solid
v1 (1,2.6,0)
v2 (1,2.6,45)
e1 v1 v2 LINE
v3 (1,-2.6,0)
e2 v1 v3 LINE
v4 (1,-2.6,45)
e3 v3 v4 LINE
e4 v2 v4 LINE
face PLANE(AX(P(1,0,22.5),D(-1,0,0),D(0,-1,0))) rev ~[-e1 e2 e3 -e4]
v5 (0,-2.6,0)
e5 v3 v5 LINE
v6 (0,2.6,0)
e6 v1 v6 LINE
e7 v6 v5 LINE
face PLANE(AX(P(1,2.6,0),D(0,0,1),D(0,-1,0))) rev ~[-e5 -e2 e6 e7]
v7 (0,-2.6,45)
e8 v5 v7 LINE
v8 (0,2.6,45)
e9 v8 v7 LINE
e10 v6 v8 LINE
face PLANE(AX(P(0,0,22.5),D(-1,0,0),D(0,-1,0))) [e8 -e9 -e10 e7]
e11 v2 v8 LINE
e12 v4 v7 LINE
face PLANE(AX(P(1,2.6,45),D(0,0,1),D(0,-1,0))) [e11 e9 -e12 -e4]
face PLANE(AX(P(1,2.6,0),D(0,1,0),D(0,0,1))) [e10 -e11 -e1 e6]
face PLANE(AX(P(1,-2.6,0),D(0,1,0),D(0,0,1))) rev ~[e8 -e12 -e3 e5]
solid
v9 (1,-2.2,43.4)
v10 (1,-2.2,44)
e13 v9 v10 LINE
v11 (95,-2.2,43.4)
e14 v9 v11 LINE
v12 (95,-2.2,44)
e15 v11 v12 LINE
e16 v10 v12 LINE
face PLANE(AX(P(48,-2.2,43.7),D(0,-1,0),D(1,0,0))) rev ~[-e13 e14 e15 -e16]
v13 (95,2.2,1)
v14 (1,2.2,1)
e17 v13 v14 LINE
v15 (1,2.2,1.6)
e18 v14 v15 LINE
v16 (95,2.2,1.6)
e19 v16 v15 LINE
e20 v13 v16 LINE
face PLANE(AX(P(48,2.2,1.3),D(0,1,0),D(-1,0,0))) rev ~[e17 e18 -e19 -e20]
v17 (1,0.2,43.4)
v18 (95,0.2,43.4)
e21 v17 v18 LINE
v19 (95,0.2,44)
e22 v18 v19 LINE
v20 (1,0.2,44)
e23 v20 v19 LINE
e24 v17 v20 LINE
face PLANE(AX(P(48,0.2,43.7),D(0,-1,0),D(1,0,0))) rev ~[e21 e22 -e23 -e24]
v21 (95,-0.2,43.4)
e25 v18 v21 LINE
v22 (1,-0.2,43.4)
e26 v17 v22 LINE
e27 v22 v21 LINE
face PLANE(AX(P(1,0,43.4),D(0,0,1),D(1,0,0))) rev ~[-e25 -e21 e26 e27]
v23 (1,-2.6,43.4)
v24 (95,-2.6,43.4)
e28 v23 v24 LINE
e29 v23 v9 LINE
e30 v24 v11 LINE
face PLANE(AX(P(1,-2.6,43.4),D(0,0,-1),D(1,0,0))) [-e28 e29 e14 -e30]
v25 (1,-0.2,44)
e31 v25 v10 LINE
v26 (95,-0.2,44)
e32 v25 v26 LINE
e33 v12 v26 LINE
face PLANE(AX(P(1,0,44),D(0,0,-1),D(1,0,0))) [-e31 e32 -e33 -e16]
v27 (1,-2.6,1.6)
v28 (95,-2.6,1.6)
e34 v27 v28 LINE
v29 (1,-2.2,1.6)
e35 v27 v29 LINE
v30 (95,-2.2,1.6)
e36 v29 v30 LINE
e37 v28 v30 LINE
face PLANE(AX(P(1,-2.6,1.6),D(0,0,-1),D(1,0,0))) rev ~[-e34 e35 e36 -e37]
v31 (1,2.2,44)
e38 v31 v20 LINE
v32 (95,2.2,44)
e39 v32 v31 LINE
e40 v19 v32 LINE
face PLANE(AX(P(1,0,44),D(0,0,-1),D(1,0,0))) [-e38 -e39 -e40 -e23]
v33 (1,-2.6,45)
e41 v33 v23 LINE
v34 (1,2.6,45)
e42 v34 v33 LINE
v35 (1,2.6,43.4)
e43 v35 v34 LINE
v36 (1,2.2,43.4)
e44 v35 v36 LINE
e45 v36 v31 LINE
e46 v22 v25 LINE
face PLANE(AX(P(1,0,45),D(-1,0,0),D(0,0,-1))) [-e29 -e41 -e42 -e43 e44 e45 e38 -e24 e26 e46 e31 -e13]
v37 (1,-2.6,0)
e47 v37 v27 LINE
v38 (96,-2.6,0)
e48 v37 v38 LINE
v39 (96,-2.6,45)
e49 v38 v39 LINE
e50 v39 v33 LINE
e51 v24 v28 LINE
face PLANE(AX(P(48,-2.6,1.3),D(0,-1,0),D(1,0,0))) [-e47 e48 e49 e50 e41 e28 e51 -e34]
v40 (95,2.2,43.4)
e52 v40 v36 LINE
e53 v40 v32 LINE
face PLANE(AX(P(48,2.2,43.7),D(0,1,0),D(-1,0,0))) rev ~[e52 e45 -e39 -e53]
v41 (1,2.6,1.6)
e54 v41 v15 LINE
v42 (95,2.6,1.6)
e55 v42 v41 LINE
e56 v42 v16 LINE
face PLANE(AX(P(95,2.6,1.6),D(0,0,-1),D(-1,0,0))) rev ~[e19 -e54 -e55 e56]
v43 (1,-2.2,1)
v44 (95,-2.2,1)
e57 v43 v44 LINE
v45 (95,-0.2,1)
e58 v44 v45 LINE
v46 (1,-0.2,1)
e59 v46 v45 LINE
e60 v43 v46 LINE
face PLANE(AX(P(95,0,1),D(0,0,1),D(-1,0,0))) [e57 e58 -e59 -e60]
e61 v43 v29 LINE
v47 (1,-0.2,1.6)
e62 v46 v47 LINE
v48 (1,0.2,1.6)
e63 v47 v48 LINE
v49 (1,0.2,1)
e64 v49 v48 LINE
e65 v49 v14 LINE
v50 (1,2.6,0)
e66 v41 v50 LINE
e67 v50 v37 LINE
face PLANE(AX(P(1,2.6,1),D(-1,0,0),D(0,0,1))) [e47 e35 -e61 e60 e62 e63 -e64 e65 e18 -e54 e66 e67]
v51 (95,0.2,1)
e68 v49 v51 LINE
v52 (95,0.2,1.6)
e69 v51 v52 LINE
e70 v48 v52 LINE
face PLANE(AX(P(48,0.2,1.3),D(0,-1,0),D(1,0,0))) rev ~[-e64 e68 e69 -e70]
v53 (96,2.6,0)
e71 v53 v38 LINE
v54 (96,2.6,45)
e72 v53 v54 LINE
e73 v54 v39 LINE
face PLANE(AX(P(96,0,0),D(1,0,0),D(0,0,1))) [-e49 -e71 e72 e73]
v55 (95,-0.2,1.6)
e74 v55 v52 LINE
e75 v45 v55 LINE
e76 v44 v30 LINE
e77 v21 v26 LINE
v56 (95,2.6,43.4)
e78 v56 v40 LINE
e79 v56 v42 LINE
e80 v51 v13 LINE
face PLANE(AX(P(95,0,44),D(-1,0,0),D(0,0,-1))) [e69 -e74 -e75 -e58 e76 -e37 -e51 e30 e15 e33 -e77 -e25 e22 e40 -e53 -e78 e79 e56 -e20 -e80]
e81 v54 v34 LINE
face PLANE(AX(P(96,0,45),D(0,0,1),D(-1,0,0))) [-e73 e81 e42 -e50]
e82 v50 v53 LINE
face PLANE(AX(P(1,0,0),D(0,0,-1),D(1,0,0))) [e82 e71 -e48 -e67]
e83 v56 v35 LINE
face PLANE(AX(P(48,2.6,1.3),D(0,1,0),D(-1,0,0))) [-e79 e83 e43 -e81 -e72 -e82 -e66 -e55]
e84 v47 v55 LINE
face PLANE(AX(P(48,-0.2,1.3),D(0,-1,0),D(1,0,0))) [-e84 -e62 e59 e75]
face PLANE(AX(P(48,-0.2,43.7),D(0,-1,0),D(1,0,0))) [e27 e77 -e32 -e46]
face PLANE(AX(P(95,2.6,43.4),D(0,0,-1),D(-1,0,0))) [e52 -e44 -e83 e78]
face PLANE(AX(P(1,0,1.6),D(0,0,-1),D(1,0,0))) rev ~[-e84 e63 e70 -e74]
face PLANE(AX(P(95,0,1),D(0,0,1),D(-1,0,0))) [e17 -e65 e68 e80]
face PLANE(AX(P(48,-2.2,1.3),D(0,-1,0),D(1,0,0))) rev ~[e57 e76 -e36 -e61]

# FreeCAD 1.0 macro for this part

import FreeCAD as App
import Part
import Sketcher

V = App.Vector


def add_polygon(sketch, points):
    """Adds a closed chain of lines whose ends are joined by coincident constraints."""
    first, n = sketch.GeometryCount, len(points)
    for a, b in zip(points, points[1:] + points[:1]):
        sketch.addGeometry(Part.LineSegment(App.Vector(*a, 0), App.Vector(*b, 0)), False)
    for i in range(n):
        sketch.addConstraint(Sketcher.Constraint("Coincident", first + i, 2, first + (i + 1) % n, 1))

doc = App.newDocument("Part")
params = doc.addObject("Spreadsheet::Sheet", "Params")
for row, (alias, value) in enumerate([
    ("sketch1_width", "95 mm"),
    ("sketch1_width2", "94 mm"),
    ("sketch1_height", "1 mm"),
    ("sketch1_height2", "45 mm"),
    ("pad1_length", "5.2 mm"),
    ("sketch2_width", "94 mm"),
    ("sketch2_height", "0.6 mm"),
    ("pad2_length", "0.4 mm"),
    ("sketch3_width", "94 mm"),
    ("sketch3_height", "0.6 mm"),
    ("pad3_length", "0.4 mm"),
    ("sketch4_width", "94 mm"),
    ("sketch4_height", "0.6 mm"),
    ("pad4_length", "0.4 mm"),
    ("sketch5_height", "45 mm"),
    ("sketch5_width", "5.2 mm"),
    ("pad5_length", "1 mm"),
], start=1):
    params.set(f"A{row}", alias)
    params.set(f"B{row}", "=" + value)
    params.setAlias(f"B{row}", alias)

body = doc.addObject("PartDesign::Body", "Body")

# Sketch on XZ plane
sketch1 = body.newObject("Sketcher::SketchObject", "Sketch")
sketch1.AttachmentSupport = (doc.getObject("XZ_Plane"), [""])
sketch1.MapMode = "FlatFace"
add_polygon(sketch1, [(1, 1), (1, 0), (96, 0), (96, 45), (1, 45), (1, 44), (95, 44), (95, 1)])  # lines 0-7
sketch1.addConstraint([
    Sketcher.Constraint("Vertical", 0),
    Sketcher.Constraint("Horizontal", 1),
    Sketcher.Constraint("Vertical", 2),
    Sketcher.Constraint("Horizontal", 3),
    Sketcher.Constraint("Vertical", 4),
    Sketcher.Constraint("Horizontal", 5),
    Sketcher.Constraint("Vertical", 6),
    Sketcher.Constraint("Horizontal", 7),
    Sketcher.Constraint("PointOnObject", 0, 2, -1),
    Sketcher.Constraint("Vertical", 0, 2, 3, 2),
    Sketcher.Constraint("Equal", 0, 4),
    Sketcher.Constraint("DistanceX", 1, 1, 1, 2, 95.0),
    Sketcher.Constraint("DistanceX", 5, 1, 5, 2, 94.0),
    Sketcher.Constraint("DistanceY", 0, 2, 0, 1, 1.0),
    Sketcher.Constraint("DistanceY", 2, 1, 2, 2, 45.0),
    Sketcher.Constraint("DistanceX", -1, 1, 0, 2, 1.0),
])
sketch1.setExpression("Constraints[19]", "Params.sketch1_width")
sketch1.setExpression("Constraints[20]", "Params.sketch1_width2")
sketch1.setExpression("Constraints[21]", "Params.sketch1_height")
sketch1.setExpression("Constraints[22]", "Params.sketch1_height2")
pad1 = body.newObject("PartDesign::Pad", "Pad")
pad1.Profile = sketch1
pad1.setExpression("Length", "Params.pad1_length")
pad1.Midplane = True

# Sketch on XZ plane
sketch2 = body.newObject("Sketcher::SketchObject", "Sketch001")
sketch2.AttachmentSupport = (doc.getObject("XZ_Plane"), [""])
sketch2.MapMode = "FlatFace"
add_polygon(sketch2, [(1, 44), (1, 43.4), (95, 43.4), (95, 44)])  # lines 0-3
add_polygon(sketch2, [(1, 1.6), (1, 1), (95, 1), (95, 1.6)])  # lines 4-7
sketch2.addConstraint([
    Sketcher.Constraint("Vertical", 0),
    Sketcher.Constraint("Horizontal", 1),
    Sketcher.Constraint("Vertical", 2),
    Sketcher.Constraint("Horizontal", 3),
    Sketcher.Constraint("Vertical", 4),
    Sketcher.Constraint("Horizontal", 5),
    Sketcher.Constraint("Vertical", 6),
    Sketcher.Constraint("Horizontal", 7),
    Sketcher.Constraint("Vertical", 3, 2, 4, 2),
    Sketcher.Constraint("Vertical", 2, 2, 5, 2),
    Sketcher.Constraint("Equal", 2, 4),
    Sketcher.Constraint("DistanceX", 1, 1, 1, 2, 94.0),
    Sketcher.Constraint("DistanceY", 0, 2, 0, 1, 0.6),
    Sketcher.Constraint("DistanceX", -1, 1, 0, 2, 1.0),
    Sketcher.Constraint("DistanceY", -1, 1, 2, 2, 44.0),
    Sketcher.Constraint("DistanceY", -1, 1, 4, 2, 1.0),
])
sketch2.setExpression("Constraints[19]", "Params.sketch2_width")
sketch2.setExpression("Constraints[20]", "Params.sketch2_height")
pad2 = body.newObject("PartDesign::Pad", "Pad001")
pad2.Profile = sketch2
pad2.setExpression("Length", "Params.pad2_length")
pad2.Midplane = True

# Sketch on XZ plane
sketch3 = body.newObject("Sketcher::SketchObject", "Sketch002")
sketch3.AttachmentSupport = (doc.getObject("XZ_Plane"), [""])
sketch3.MapMode = "FlatFace"
sketch3.AttachmentOffset = App.Placement(V(0, 0, 2.6), App.Rotation())
add_polygon(sketch3, [(1, 1.6), (1, 1), (95, 1), (95, 1.6)])  # lines 0-3
add_polygon(sketch3, [(1, 44), (1, 43.4), (95, 43.4), (95, 44)])  # lines 4-7
sketch3.addConstraint([
    Sketcher.Constraint("Vertical", 0),
    Sketcher.Constraint("Horizontal", 1),
    Sketcher.Constraint("Vertical", 2),
    Sketcher.Constraint("Horizontal", 3),
    Sketcher.Constraint("Vertical", 4),
    Sketcher.Constraint("Horizontal", 5),
    Sketcher.Constraint("Vertical", 6),
    Sketcher.Constraint("Horizontal", 7),
    Sketcher.Constraint("Vertical", 3, 2, 4, 2),
    Sketcher.Constraint("Vertical", 2, 2, 5, 2),
    Sketcher.Constraint("Equal", 2, 4),
    Sketcher.Constraint("DistanceX", 1, 1, 1, 2, 94.0),
    Sketcher.Constraint("DistanceY", 0, 2, 0, 1, 0.6),
    Sketcher.Constraint("DistanceX", -1, 1, 0, 2, 1.0),
    Sketcher.Constraint("DistanceY", -1, 1, 0, 2, 1.0),
    Sketcher.Constraint("DistanceY", -1, 1, 6, 2, 44.0),
])
sketch3.setExpression("Constraints[19]", "Params.sketch3_width")
sketch3.setExpression("Constraints[20]", "Params.sketch3_height")
pad3 = body.newObject("PartDesign::Pad", "Pad002")
pad3.Profile = sketch3
pad3.setExpression("Length", "Params.pad3_length")
pad3.Reversed = True

# Sketch on XZ plane
sketch4 = body.newObject("Sketcher::SketchObject", "Sketch003")
sketch4.AttachmentSupport = (doc.getObject("XZ_Plane"), [""])
sketch4.MapMode = "FlatFace"
sketch4.AttachmentOffset = App.Placement(V(0, 0, -2.6), App.Rotation())
add_polygon(sketch4, [(95, 1.6), (95, 1), (1, 1), (1, 1.6)])  # lines 0-3
add_polygon(sketch4, [(95, 44), (95, 43.4), (1, 43.4), (1, 44)])  # lines 4-7
sketch4.addConstraint([
    Sketcher.Constraint("Vertical", 0),
    Sketcher.Constraint("Horizontal", 1),
    Sketcher.Constraint("Vertical", 2),
    Sketcher.Constraint("Horizontal", 3),
    Sketcher.Constraint("Vertical", 4),
    Sketcher.Constraint("Horizontal", 5),
    Sketcher.Constraint("Vertical", 6),
    Sketcher.Constraint("Horizontal", 7),
    Sketcher.Constraint("Vertical", 3, 2, 4, 2),
    Sketcher.Constraint("Vertical", 2, 2, 5, 2),
    Sketcher.Constraint("Equal", 2, 4),
    Sketcher.Constraint("DistanceX", 1, 2, 1, 1, 94.0),
    Sketcher.Constraint("DistanceY", 0, 2, 0, 1, 0.6),
    Sketcher.Constraint("DistanceX", -1, 1, 0, 2, 95.0),
    Sketcher.Constraint("DistanceY", -1, 1, 0, 2, 1.0),
    Sketcher.Constraint("DistanceY", -1, 1, 6, 2, 44.0),
])
sketch4.setExpression("Constraints[19]", "Params.sketch4_width")
sketch4.setExpression("Constraints[20]", "Params.sketch4_height")
pad4 = body.newObject("PartDesign::Pad", "Pad003")
pad4.Profile = sketch4
pad4.setExpression("Length", "Params.pad4_length")
body2 = doc.addObject("PartDesign::Body", "Body001")

# Sketch on YZ plane
sketch5 = body2.newObject("Sketcher::SketchObject", "Sketch004")
sketch5.AttachmentSupport = (doc.getObject("YZ_Plane001"), [""])
sketch5.MapMode = "FlatFace"
sketch5.AttachmentOffset = App.Placement(V(0, 0, 1), App.Rotation())
add_polygon(sketch5, [(3, 45), (3, 0), (-3, 0), (-3, 45)])  # lines 0-3
sketch5.addConstraint([
    Sketcher.Constraint("Vertical", 0),
    Sketcher.Constraint("Horizontal", 1),
    Sketcher.Constraint("Vertical", 2),
    Sketcher.Constraint("Horizontal", 3),
    Sketcher.Constraint("Symmetric", 0, 2, 1, 2, -1, 1),
    Sketcher.Constraint("DistanceY", 0, 2, 0, 1, 45.0),
    Sketcher.Constraint("DistanceX", 1, 2, 1, 1, 5.2),
])
sketch5.setExpression("Constraints[9]", "Params.sketch5_height")
sketch5.setExpression("Constraints[10]", "Params.sketch5_width")
pad5 = body2.newObject("PartDesign::Pad", "Pad004")
pad5.Profile = sketch5
pad5.setExpression("Length", "Params.pad5_length")
pad5.Reversed = True

doc.recompute()
